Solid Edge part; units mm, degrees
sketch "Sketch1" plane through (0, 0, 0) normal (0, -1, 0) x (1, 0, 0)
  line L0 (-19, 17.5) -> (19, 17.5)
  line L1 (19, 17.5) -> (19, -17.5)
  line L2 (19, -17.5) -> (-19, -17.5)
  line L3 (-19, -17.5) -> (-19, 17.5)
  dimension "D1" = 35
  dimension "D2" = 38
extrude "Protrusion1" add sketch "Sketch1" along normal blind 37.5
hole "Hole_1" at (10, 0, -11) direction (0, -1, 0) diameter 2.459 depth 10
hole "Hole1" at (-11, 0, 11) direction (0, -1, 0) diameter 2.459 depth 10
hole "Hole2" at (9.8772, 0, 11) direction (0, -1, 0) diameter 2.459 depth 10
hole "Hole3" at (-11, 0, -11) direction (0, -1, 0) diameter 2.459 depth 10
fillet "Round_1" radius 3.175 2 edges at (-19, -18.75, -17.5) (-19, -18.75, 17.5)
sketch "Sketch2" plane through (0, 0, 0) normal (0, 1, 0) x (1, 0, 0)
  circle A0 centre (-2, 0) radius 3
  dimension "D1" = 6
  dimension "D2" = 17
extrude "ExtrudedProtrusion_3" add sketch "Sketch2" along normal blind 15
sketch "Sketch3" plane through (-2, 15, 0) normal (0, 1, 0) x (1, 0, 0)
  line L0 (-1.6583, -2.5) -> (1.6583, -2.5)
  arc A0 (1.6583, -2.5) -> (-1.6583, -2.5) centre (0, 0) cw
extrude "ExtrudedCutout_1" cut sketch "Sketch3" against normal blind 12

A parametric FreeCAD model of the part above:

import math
import FreeCAD as App
import Part
import Sketcher


def edges_at(feature, points):
    """Names of the edges that pass closest to the given points."""
    edges = feature.Shape.Edges
    near = lambda p: min(range(len(edges)), key=lambda i: edges[i].distToShape(Part.Vertex(*p))[0])
    return sorted({f"Edge{near(p) + 1}" for p in points})

doc = App.newDocument("Part")
params = doc.addObject("Spreadsheet::Sheet", "Params")
for row, (alias, value) in enumerate([
    ("sketch1_width", "38 mm"),
    ("sketch1_height", "35 mm"),
    ("pad1_length", "37.5 mm"),
    ("hole_diameter", "2.459 mm"),
    ("hole_depth", "10 mm"),
    ("hole2_diameter", "2.459 mm"),
    ("hole2_depth", "10 mm"),
    ("hole3_diameter", "2.459 mm"),
    ("hole3_depth", "10 mm"),
    ("hole4_diameter", "2.459 mm"),
    ("hole4_depth", "10 mm"),
    ("fillet_radius", "3.175 mm"),
    ("sketch6_diameter", "6 mm"),
    ("pad2_length", "15 mm"),
    ("sketch7_radius", "3 mm"),
    ("pocket1_length", "12 mm"),
], start=1):
    params.set(f"A{row}", alias)
    params.set(f"B{row}", "=" + value)
    params.setAlias(f"B{row}", alias)

body = doc.addObject("PartDesign::Body", "Body")

# Sketch on XZ plane
sketch1 = doc.addObject("Sketcher::SketchObject", "Sketch")
body.addObject(sketch1)
sketch1.AttachmentSupport = (doc.XZ_Plane, [""])
sketch1.MapMode = "FlatFace"
sketch1.addGeometry([
    Part.LineSegment(App.Vector(19, 18, 0), App.Vector(-19, 18, 0)),
    Part.LineSegment(App.Vector(-19, 18, 0), App.Vector(-19, -18, 0)),
    Part.LineSegment(App.Vector(-19, -18, 0), App.Vector(19, -18, 0)),
    Part.LineSegment(App.Vector(19, -18, 0), App.Vector(19, 18, 0)),
], False)
sketch1.addConstraint([
    Sketcher.Constraint("Coincident", 0, 2, 1, 1),
    Sketcher.Constraint("Coincident", 1, 2, 2, 1),
    Sketcher.Constraint("Coincident", 2, 2, 3, 1),
    Sketcher.Constraint("Coincident", 3, 2, 0, 1),
    Sketcher.Constraint("Horizontal", 0),
    Sketcher.Constraint("Vertical", 1),
    Sketcher.Constraint("Horizontal", 2),
    Sketcher.Constraint("Vertical", 3),
    Sketcher.Constraint("Symmetric", 0, 2, 2, 2, -1, 1),
    Sketcher.Constraint("DistanceX", 0, 2, 0, 1, 38.0),
    Sketcher.Constraint("DistanceY", 1, 2, 1, 1, 35.0),
])
sketch1.setExpression("Constraints[9]", "Params.sketch1_width")
sketch1.setExpression("Constraints[10]", "Params.sketch1_height")
pad1 = doc.addObject("PartDesign::Pad", "Pad")
body.addObject(pad1)
pad1.Profile = sketch1
pad1.setExpression("Length", "Params.pad1_length")

# Sketch on XZ plane
sketch2 = doc.addObject("Sketcher::SketchObject", "Sketch001")
body.addObject(sketch2)
sketch2.AttachmentSupport = (doc.XZ_Plane, [""])
sketch2.MapMode = "FlatFace"
sketch2.addGeometry(Part.Circle(App.Vector(10, -11, 0), App.Vector(0, 0, 1), 1.2), False)
sketch2.addConstraint([
    Sketcher.Constraint("Diameter", 0, 2.459),
    Sketcher.Constraint("DistanceX", -1, 1, 0, 3, 10.0),
    Sketcher.Constraint("DistanceY", 0, 3, -1, 1, 11.0),
])
doc.recompute()
hole = doc.addObject("PartDesign::Hole", "Hole")
body.addObject(hole)
hole.Profile = sketch2
hole.ThreadType = "None"
hole.setExpression("Diameter", "Params.hole_diameter")
hole.DepthType = "Dimension"
hole.setExpression("Depth", "Params.hole_depth")
hole.DrillPoint = "Flat"
hole.Reversed = True

# Sketch on XZ plane
sketch3 = doc.addObject("Sketcher::SketchObject", "Sketch002")
body.addObject(sketch3)
sketch3.AttachmentSupport = (doc.XZ_Plane, [""])
sketch3.MapMode = "FlatFace"
sketch3.addGeometry(Part.Circle(App.Vector(-11, 11, 0), App.Vector(0, 0, 1), 1.2), False)
sketch3.addConstraint([
    Sketcher.Constraint("Diameter", 0, 2.459),
    Sketcher.Constraint("DistanceX", 0, 3, -1, 1, 11.0),
    Sketcher.Constraint("DistanceY", -1, 1, 0, 3, 11.0),
])
doc.recompute()
hole2 = doc.addObject("PartDesign::Hole", "Hole001")
body.addObject(hole2)
hole2.Profile = sketch3
hole2.ThreadType = "None"
hole2.setExpression("Diameter", "Params.hole2_diameter")
hole2.DepthType = "Dimension"
hole2.setExpression("Depth", "Params.hole2_depth")
hole2.DrillPoint = "Flat"
hole2.Reversed = True

# Sketch on XZ plane
sketch4 = doc.addObject("Sketcher::SketchObject", "Sketch003")
body.addObject(sketch4)
sketch4.AttachmentSupport = (doc.XZ_Plane, [""])
sketch4.MapMode = "FlatFace"
sketch4.addGeometry(Part.Circle(App.Vector(9.9, 11, 0), App.Vector(0, 0, 1), 1.2), False)
sketch4.addConstraint([
    Sketcher.Constraint("Diameter", 0, 2.459),
    Sketcher.Constraint("DistanceY", -1, 1, 0, 3, 11.0),
    Sketcher.Constraint("DistanceX", -1, 1, 0, 3, 9.8772),
])
doc.recompute()
hole3 = doc.addObject("PartDesign::Hole", "Hole002")
body.addObject(hole3)
hole3.Profile = sketch4
hole3.ThreadType = "None"
hole3.setExpression("Diameter", "Params.hole3_diameter")
hole3.DepthType = "Dimension"
hole3.setExpression("Depth", "Params.hole3_depth")
hole3.DrillPoint = "Flat"
hole3.Reversed = True

# Sketch on XZ plane
sketch5 = doc.addObject("Sketcher::SketchObject", "Sketch004")
body.addObject(sketch5)
sketch5.AttachmentSupport = (doc.XZ_Plane, [""])
sketch5.MapMode = "FlatFace"
sketch5.addGeometry(Part.Circle(App.Vector(-11, -11, 0), App.Vector(0, 0, 1), 1.2), False)
sketch5.addConstraint([
    Sketcher.Constraint("Diameter", 0, 2.459),
    Sketcher.Constraint("DistanceX", 0, 3, -1, 1, 11.0),
    Sketcher.Constraint("DistanceY", 0, 3, -1, 1, 11.0),
])
doc.recompute()
hole4 = doc.addObject("PartDesign::Hole", "Hole003")
body.addObject(hole4)
hole4.Profile = sketch5
hole4.ThreadType = "None"
hole4.setExpression("Diameter", "Params.hole4_diameter")
hole4.DepthType = "Dimension"
hole4.setExpression("Depth", "Params.hole4_depth")
hole4.DrillPoint = "Flat"
hole4.Reversed = True
doc.recompute()

fillet = doc.addObject("PartDesign::Fillet", "Fillet")
body.addObject(fillet)
fillet.Base = (hole4, edges_at(hole4, [(-19, -18.75, -17.5), (-19, -18.75, 17.5)]))
fillet.setExpression("Radius", "Params.fillet_radius")

# Sketch on XZ plane
sketch6 = doc.addObject("Sketcher::SketchObject", "Sketch005")
body.addObject(sketch6)
sketch6.AttachmentSupport = (doc.XZ_Plane, [""])
sketch6.MapMode = "FlatFace"
sketch6.addGeometry(Part.Circle(App.Vector(-2, 0, 0), App.Vector(0, 0, 1), 3), False)
sketch6.addConstraint([
    Sketcher.Constraint("PointOnObject", 0, 3, -1),
    Sketcher.Constraint("Diameter", 0, 6.0),
    Sketcher.Constraint("DistanceX", 0, 3, -1, 1, 2.0),
])
sketch6.setExpression("Constraints[1]", "Params.sketch6_diameter")
pad2 = doc.addObject("PartDesign::Pad", "Pad001")
body.addObject(pad2)
pad2.Profile = sketch6
pad2.setExpression("Length", "Params.pad2_length")
pad2.Reversed = True

# Sketch on XZ plane
sketch7 = doc.addObject("Sketcher::SketchObject", "Sketch006")
body.addObject(sketch7)
sketch7.AttachmentSupport = (doc.XZ_Plane, [""])
sketch7.MapMode = "FlatFace"
sketch7.AttachmentOffset = App.Placement(App.Vector(0, 0, -15), App.Rotation())
sketch7.addGeometry([
    Part.LineSegment(App.Vector(-0.3, 2.5, 0), App.Vector(-3.7, 2.5, 0)),
    Part.ArcOfCircle(Part.Circle(App.Vector(-2, 0, 0), App.Vector(0, 0, 1), 3), math.radians(56), math.radians(124)),
], False)
sketch7.addConstraint([
    Sketcher.Constraint("Coincident", 0, 1, 1, 1),
    Sketcher.Constraint("Coincident", 1, 2, 0, 2),
    Sketcher.Constraint("Horizontal", 0),
    Sketcher.Constraint("PointOnObject", 1, 3, -1),
    Sketcher.Constraint("Radius", 1, 3.0),
    Sketcher.Constraint("DistanceX", 1, 3, -1, 1, 2.0),
    Sketcher.Constraint("DistanceY", -1, 1, 0, 1, 2.5),
])
sketch7.setExpression("Constraints[4]", "Params.sketch7_radius")
pocket1 = doc.addObject("PartDesign::Pocket", "Pocket")
body.addObject(pocket1)
pocket1.Profile = sketch7
pocket1.setExpression("Length", "Params.pocket1_length")
pocket1.Reversed = True

doc.recompute()
